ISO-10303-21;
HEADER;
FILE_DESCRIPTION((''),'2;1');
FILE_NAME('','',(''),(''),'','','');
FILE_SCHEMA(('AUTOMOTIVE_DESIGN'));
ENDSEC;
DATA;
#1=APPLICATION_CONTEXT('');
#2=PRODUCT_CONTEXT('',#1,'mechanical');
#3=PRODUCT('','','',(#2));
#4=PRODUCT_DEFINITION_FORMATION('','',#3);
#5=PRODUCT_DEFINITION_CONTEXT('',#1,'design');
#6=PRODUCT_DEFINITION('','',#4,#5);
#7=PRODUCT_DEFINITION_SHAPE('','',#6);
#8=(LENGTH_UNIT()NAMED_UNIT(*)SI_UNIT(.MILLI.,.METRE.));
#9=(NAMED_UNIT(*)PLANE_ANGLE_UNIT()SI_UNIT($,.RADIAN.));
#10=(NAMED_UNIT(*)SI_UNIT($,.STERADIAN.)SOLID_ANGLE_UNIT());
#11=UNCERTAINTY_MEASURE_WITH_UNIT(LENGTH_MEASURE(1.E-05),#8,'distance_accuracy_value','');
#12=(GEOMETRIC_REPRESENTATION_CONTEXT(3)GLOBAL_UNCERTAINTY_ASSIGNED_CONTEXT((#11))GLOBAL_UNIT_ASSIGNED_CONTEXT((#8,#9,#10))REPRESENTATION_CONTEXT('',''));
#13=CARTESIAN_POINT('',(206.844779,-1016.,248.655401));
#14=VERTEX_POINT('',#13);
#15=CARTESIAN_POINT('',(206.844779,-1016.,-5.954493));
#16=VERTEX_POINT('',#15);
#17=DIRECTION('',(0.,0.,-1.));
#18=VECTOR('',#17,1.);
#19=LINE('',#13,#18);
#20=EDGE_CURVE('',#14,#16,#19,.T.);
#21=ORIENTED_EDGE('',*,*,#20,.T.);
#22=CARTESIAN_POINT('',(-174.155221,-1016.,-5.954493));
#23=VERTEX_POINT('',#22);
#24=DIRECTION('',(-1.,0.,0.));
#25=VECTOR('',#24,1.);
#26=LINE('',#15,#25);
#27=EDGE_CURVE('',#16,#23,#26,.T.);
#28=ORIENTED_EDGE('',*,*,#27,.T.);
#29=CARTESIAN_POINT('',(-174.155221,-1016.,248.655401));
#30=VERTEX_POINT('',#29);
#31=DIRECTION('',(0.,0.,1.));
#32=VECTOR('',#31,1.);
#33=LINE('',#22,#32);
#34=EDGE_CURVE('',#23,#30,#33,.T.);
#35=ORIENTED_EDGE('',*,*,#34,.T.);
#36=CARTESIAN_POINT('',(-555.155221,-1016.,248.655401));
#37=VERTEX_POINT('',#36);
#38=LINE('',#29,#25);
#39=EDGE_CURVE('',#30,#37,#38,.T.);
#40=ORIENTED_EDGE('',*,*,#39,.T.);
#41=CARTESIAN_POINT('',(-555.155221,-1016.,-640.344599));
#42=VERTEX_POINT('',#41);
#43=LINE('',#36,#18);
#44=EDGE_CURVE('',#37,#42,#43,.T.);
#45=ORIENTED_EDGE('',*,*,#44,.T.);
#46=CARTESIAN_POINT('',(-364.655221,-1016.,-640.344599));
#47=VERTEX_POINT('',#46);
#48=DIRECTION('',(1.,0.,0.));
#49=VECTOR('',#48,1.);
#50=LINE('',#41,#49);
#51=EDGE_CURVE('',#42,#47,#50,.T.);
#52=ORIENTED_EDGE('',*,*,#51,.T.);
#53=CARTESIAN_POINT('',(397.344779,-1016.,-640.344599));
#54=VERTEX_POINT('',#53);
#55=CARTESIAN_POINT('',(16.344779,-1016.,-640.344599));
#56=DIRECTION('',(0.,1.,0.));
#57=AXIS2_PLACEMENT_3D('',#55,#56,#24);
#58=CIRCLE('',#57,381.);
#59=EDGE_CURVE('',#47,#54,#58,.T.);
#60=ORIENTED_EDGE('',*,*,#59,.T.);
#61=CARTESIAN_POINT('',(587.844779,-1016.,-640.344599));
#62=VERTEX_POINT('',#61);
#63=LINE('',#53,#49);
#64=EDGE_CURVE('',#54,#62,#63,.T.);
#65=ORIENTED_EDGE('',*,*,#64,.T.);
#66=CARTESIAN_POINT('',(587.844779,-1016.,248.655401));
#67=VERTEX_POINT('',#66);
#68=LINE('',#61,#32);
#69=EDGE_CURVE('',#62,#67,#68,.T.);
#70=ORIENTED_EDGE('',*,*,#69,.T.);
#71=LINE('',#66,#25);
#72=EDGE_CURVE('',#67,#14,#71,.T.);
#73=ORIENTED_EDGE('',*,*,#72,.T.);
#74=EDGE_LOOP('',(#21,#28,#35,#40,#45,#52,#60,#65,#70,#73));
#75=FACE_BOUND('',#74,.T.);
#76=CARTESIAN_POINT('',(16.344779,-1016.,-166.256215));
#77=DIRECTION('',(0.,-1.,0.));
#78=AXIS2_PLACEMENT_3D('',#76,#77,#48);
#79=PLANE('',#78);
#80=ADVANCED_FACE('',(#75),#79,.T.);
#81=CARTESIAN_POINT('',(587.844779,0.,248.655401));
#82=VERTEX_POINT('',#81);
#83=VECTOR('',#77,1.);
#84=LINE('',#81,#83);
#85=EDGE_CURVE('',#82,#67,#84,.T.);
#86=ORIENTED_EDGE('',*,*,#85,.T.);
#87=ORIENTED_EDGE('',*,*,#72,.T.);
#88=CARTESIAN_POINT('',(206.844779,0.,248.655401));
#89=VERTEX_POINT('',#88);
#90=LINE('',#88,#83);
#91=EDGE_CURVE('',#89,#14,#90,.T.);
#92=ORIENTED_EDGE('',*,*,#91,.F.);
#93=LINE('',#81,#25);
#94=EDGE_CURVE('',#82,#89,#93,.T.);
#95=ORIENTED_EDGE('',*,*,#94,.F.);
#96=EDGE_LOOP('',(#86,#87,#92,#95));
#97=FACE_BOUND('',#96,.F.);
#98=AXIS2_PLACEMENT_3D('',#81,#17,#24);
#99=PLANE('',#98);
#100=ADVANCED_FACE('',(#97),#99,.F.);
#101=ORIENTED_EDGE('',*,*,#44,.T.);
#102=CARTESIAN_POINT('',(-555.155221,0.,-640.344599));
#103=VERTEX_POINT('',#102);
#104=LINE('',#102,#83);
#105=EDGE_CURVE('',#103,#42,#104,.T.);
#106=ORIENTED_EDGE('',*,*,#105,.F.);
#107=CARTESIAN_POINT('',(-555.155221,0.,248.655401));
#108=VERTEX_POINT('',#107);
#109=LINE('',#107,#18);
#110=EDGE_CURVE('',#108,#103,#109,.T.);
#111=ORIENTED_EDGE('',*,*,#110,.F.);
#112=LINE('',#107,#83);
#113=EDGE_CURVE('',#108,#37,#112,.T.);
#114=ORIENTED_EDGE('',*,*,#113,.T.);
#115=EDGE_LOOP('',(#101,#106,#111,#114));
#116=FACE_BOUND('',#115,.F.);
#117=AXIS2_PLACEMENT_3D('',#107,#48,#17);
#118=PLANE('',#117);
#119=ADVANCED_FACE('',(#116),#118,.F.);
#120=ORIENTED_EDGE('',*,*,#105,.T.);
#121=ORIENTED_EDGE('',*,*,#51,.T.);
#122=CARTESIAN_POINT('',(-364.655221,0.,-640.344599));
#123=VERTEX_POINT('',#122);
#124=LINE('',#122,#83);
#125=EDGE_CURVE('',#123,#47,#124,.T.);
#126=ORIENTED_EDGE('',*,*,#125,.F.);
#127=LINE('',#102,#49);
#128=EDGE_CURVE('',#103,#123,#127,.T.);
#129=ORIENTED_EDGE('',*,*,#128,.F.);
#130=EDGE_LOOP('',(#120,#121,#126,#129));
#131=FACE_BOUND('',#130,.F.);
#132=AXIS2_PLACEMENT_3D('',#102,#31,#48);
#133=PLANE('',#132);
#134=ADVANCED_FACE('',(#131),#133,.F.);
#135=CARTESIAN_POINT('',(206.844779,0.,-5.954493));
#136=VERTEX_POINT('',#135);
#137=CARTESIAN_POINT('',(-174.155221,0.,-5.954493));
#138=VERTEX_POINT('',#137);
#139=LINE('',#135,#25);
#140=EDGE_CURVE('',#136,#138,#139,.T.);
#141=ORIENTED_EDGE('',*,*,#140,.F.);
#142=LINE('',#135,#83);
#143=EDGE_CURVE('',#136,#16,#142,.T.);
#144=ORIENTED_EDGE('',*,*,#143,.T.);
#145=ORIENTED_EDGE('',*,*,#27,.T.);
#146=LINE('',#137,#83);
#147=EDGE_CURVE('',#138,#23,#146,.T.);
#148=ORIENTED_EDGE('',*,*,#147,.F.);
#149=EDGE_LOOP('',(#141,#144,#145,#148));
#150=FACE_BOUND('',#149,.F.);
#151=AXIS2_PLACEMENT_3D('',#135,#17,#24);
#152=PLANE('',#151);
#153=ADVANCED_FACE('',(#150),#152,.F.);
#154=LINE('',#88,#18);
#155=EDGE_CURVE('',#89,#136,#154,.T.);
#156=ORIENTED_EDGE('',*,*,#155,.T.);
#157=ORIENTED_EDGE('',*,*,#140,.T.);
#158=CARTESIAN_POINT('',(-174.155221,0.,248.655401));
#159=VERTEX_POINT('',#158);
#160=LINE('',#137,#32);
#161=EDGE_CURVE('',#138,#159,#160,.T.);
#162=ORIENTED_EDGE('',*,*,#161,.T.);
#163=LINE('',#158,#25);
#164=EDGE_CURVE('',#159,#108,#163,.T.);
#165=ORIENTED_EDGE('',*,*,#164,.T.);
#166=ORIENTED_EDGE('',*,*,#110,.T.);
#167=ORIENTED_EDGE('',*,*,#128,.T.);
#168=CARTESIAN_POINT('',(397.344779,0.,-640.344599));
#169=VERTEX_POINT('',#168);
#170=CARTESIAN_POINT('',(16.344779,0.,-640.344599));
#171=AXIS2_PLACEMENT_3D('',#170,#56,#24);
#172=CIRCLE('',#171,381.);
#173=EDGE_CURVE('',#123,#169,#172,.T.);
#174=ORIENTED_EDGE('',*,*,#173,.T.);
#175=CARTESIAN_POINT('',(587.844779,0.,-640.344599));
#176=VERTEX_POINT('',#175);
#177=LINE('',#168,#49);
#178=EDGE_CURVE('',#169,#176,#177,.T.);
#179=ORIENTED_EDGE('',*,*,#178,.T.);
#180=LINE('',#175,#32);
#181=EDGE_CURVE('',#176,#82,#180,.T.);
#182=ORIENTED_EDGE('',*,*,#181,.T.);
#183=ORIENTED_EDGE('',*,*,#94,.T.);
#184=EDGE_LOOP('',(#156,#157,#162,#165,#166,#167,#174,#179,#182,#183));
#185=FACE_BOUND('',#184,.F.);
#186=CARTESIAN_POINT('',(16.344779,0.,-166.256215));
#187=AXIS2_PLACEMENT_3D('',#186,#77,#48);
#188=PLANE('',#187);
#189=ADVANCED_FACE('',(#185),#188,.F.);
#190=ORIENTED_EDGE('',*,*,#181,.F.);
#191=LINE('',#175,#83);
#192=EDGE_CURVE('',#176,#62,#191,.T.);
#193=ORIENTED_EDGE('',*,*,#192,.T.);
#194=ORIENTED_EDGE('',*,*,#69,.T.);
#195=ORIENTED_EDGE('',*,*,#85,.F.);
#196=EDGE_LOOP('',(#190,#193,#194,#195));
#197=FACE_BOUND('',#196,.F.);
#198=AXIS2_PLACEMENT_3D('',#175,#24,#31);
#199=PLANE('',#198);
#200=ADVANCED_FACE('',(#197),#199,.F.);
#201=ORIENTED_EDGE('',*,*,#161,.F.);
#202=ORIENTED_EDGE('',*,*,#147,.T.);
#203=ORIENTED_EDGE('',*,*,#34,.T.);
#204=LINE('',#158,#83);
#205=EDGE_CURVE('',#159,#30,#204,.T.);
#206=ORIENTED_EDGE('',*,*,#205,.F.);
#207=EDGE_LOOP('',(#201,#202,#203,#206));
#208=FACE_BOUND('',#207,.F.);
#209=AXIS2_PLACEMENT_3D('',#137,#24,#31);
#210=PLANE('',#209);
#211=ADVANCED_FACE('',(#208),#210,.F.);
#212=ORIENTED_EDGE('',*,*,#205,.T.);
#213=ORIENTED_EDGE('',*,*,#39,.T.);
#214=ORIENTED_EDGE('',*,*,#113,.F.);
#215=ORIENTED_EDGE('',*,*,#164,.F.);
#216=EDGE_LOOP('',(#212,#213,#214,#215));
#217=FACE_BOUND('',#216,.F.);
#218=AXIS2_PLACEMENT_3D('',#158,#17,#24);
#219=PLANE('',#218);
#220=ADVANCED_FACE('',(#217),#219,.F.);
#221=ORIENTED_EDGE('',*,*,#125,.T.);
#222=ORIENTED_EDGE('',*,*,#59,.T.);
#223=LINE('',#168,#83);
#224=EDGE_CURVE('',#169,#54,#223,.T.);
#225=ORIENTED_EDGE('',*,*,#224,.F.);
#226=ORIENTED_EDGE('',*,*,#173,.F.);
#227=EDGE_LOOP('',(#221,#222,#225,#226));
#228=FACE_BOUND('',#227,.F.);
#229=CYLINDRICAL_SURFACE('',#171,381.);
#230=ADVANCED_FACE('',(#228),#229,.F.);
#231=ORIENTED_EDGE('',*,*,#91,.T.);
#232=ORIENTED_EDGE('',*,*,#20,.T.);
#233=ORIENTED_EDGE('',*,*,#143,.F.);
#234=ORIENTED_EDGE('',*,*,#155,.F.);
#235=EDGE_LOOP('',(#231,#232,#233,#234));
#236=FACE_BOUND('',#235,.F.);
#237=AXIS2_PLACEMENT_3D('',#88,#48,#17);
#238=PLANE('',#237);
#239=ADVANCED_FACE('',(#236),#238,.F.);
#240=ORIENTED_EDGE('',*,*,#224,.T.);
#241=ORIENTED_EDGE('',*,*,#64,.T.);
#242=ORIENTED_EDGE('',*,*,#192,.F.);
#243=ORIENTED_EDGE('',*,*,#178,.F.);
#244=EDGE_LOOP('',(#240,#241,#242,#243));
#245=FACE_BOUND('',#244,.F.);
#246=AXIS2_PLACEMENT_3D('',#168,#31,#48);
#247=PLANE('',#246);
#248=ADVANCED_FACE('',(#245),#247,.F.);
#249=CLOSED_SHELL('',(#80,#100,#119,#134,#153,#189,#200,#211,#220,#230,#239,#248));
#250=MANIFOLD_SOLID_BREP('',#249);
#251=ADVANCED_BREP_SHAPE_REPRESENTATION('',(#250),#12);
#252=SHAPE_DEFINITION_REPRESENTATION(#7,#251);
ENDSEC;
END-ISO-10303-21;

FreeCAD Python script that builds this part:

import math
import FreeCAD as App
import Part
import Sketcher

V = App.Vector
Q = App.Units.Quantity

doc = App.newDocument("Part")
params = doc.addObject("Spreadsheet::Sheet", "Params")
for row, (alias, value) in enumerate([
    ("sketch1_radius", "15 in"),
    ("sketch1_width", "15 in"),
    ("sketch1_height", "35 in"),
    ("pad1_length", "40 in"),
], start=1):
    params.set(f"A{row}", alias)
    params.set(f"B{row}", "=" + value)
    params.setAlias(f"B{row}", alias)

body = doc.addObject("PartDesign::Body", "Body")

# Sketch on XZ plane
sketch1 = body.newObject("Sketcher::SketchObject", "Sketch")
sketch1.AttachmentSupport = (doc.getObject("XZ_Plane"), [""])
sketch1.MapMode = "FlatFace"
sketch1.addGeometry([
    Part.LineSegment(V(-174, 249, 0), V(-555, 249, 0)),  # 0
    Part.LineSegment(V(-555, 249, 0), V(-555, -640, 0)),  # 1
    Part.LineSegment(V(-555, -640, 0), V(-365, -640, 0)),  # 2
    Part.ArcOfCircle(Part.Circle(V(16, -640, 0), V(0, 0, 1), 381), math.radians(0), math.radians(180)),  # 3
    Part.LineSegment(V(397, -640, 0), V(588, -640, 0)),  # 4
    Part.LineSegment(V(588, -640, 0), V(588, 249, 0)),  # 5
    Part.LineSegment(V(588, 249, 0), V(207, 249, 0)),  # 6
    Part.LineSegment(V(207, 249, 0), V(207, -6, 0)),  # 7
    Part.LineSegment(V(207, -6, 0), V(-174, -6, 0)),  # 8
    Part.LineSegment(V(-174, -6, 0), V(-174, 249, 0)),  # 9
], False)
sketch1.addConstraint([
    Sketcher.Constraint("Coincident", 0, 2, 1, 1),
    Sketcher.Constraint("Coincident", 1, 2, 2, 1),
    Sketcher.Constraint("Coincident", 2, 2, 3, 2),
    Sketcher.Constraint("Coincident", 3, 1, 4, 1),
    Sketcher.Constraint("Coincident", 4, 2, 5, 1),
    Sketcher.Constraint("Coincident", 5, 2, 6, 1),
    Sketcher.Constraint("Coincident", 6, 2, 7, 1),
    Sketcher.Constraint("Coincident", 7, 2, 8, 1),
    Sketcher.Constraint("Coincident", 8, 2, 9, 1),
    Sketcher.Constraint("Coincident", 9, 2, 0, 1),
    Sketcher.Constraint("Horizontal", 0),
    Sketcher.Constraint("Vertical", 1),
    Sketcher.Constraint("Horizontal", 2),
    Sketcher.Constraint("Horizontal", 4),
    Sketcher.Constraint("Vertical", 5),
    Sketcher.Constraint("Horizontal", 6),
    Sketcher.Constraint("Vertical", 7),
    Sketcher.Constraint("Horizontal", 8),
    Sketcher.Constraint("Vertical", 9),
    Sketcher.Constraint("Horizontal", 3, 3, 1, 2),
    Sketcher.Constraint("Horizontal", 2, 2, 3, 1),
    Sketcher.Constraint("Horizontal", 0, 2, 5, 2),
    Sketcher.Constraint("Equal", 2, 4),
    Sketcher.Constraint("Equal", 0, 6),
    Sketcher.Constraint("Equal", 6, 8),
    Sketcher.Constraint("Radius", 3, Q("15 in")),
    Sketcher.Constraint("DistanceX", 0, 2, 0, 1, Q("15 in")),
    Sketcher.Constraint("DistanceY", 1, 2, 1, 1, Q("35 in")),
    Sketcher.Constraint("DistanceY", 3, 3, -1, 1, 640.344599),
    Sketcher.Constraint("DistanceY", 7, 2, 7, 1, 254.609894),
    Sketcher.Constraint("DistanceX", -1, 1, 3, 3, 16.344779),
])
sketch1.setExpression("Constraints[25]", "Params.sketch1_radius")
sketch1.setExpression("Constraints[26]", "Params.sketch1_width")
sketch1.setExpression("Constraints[27]", "Params.sketch1_height")
pad1 = body.newObject("PartDesign::Pad", "Pad")
pad1.Profile = sketch1
pad1.setExpression("Length", "Params.pad1_length")

doc.recompute()
